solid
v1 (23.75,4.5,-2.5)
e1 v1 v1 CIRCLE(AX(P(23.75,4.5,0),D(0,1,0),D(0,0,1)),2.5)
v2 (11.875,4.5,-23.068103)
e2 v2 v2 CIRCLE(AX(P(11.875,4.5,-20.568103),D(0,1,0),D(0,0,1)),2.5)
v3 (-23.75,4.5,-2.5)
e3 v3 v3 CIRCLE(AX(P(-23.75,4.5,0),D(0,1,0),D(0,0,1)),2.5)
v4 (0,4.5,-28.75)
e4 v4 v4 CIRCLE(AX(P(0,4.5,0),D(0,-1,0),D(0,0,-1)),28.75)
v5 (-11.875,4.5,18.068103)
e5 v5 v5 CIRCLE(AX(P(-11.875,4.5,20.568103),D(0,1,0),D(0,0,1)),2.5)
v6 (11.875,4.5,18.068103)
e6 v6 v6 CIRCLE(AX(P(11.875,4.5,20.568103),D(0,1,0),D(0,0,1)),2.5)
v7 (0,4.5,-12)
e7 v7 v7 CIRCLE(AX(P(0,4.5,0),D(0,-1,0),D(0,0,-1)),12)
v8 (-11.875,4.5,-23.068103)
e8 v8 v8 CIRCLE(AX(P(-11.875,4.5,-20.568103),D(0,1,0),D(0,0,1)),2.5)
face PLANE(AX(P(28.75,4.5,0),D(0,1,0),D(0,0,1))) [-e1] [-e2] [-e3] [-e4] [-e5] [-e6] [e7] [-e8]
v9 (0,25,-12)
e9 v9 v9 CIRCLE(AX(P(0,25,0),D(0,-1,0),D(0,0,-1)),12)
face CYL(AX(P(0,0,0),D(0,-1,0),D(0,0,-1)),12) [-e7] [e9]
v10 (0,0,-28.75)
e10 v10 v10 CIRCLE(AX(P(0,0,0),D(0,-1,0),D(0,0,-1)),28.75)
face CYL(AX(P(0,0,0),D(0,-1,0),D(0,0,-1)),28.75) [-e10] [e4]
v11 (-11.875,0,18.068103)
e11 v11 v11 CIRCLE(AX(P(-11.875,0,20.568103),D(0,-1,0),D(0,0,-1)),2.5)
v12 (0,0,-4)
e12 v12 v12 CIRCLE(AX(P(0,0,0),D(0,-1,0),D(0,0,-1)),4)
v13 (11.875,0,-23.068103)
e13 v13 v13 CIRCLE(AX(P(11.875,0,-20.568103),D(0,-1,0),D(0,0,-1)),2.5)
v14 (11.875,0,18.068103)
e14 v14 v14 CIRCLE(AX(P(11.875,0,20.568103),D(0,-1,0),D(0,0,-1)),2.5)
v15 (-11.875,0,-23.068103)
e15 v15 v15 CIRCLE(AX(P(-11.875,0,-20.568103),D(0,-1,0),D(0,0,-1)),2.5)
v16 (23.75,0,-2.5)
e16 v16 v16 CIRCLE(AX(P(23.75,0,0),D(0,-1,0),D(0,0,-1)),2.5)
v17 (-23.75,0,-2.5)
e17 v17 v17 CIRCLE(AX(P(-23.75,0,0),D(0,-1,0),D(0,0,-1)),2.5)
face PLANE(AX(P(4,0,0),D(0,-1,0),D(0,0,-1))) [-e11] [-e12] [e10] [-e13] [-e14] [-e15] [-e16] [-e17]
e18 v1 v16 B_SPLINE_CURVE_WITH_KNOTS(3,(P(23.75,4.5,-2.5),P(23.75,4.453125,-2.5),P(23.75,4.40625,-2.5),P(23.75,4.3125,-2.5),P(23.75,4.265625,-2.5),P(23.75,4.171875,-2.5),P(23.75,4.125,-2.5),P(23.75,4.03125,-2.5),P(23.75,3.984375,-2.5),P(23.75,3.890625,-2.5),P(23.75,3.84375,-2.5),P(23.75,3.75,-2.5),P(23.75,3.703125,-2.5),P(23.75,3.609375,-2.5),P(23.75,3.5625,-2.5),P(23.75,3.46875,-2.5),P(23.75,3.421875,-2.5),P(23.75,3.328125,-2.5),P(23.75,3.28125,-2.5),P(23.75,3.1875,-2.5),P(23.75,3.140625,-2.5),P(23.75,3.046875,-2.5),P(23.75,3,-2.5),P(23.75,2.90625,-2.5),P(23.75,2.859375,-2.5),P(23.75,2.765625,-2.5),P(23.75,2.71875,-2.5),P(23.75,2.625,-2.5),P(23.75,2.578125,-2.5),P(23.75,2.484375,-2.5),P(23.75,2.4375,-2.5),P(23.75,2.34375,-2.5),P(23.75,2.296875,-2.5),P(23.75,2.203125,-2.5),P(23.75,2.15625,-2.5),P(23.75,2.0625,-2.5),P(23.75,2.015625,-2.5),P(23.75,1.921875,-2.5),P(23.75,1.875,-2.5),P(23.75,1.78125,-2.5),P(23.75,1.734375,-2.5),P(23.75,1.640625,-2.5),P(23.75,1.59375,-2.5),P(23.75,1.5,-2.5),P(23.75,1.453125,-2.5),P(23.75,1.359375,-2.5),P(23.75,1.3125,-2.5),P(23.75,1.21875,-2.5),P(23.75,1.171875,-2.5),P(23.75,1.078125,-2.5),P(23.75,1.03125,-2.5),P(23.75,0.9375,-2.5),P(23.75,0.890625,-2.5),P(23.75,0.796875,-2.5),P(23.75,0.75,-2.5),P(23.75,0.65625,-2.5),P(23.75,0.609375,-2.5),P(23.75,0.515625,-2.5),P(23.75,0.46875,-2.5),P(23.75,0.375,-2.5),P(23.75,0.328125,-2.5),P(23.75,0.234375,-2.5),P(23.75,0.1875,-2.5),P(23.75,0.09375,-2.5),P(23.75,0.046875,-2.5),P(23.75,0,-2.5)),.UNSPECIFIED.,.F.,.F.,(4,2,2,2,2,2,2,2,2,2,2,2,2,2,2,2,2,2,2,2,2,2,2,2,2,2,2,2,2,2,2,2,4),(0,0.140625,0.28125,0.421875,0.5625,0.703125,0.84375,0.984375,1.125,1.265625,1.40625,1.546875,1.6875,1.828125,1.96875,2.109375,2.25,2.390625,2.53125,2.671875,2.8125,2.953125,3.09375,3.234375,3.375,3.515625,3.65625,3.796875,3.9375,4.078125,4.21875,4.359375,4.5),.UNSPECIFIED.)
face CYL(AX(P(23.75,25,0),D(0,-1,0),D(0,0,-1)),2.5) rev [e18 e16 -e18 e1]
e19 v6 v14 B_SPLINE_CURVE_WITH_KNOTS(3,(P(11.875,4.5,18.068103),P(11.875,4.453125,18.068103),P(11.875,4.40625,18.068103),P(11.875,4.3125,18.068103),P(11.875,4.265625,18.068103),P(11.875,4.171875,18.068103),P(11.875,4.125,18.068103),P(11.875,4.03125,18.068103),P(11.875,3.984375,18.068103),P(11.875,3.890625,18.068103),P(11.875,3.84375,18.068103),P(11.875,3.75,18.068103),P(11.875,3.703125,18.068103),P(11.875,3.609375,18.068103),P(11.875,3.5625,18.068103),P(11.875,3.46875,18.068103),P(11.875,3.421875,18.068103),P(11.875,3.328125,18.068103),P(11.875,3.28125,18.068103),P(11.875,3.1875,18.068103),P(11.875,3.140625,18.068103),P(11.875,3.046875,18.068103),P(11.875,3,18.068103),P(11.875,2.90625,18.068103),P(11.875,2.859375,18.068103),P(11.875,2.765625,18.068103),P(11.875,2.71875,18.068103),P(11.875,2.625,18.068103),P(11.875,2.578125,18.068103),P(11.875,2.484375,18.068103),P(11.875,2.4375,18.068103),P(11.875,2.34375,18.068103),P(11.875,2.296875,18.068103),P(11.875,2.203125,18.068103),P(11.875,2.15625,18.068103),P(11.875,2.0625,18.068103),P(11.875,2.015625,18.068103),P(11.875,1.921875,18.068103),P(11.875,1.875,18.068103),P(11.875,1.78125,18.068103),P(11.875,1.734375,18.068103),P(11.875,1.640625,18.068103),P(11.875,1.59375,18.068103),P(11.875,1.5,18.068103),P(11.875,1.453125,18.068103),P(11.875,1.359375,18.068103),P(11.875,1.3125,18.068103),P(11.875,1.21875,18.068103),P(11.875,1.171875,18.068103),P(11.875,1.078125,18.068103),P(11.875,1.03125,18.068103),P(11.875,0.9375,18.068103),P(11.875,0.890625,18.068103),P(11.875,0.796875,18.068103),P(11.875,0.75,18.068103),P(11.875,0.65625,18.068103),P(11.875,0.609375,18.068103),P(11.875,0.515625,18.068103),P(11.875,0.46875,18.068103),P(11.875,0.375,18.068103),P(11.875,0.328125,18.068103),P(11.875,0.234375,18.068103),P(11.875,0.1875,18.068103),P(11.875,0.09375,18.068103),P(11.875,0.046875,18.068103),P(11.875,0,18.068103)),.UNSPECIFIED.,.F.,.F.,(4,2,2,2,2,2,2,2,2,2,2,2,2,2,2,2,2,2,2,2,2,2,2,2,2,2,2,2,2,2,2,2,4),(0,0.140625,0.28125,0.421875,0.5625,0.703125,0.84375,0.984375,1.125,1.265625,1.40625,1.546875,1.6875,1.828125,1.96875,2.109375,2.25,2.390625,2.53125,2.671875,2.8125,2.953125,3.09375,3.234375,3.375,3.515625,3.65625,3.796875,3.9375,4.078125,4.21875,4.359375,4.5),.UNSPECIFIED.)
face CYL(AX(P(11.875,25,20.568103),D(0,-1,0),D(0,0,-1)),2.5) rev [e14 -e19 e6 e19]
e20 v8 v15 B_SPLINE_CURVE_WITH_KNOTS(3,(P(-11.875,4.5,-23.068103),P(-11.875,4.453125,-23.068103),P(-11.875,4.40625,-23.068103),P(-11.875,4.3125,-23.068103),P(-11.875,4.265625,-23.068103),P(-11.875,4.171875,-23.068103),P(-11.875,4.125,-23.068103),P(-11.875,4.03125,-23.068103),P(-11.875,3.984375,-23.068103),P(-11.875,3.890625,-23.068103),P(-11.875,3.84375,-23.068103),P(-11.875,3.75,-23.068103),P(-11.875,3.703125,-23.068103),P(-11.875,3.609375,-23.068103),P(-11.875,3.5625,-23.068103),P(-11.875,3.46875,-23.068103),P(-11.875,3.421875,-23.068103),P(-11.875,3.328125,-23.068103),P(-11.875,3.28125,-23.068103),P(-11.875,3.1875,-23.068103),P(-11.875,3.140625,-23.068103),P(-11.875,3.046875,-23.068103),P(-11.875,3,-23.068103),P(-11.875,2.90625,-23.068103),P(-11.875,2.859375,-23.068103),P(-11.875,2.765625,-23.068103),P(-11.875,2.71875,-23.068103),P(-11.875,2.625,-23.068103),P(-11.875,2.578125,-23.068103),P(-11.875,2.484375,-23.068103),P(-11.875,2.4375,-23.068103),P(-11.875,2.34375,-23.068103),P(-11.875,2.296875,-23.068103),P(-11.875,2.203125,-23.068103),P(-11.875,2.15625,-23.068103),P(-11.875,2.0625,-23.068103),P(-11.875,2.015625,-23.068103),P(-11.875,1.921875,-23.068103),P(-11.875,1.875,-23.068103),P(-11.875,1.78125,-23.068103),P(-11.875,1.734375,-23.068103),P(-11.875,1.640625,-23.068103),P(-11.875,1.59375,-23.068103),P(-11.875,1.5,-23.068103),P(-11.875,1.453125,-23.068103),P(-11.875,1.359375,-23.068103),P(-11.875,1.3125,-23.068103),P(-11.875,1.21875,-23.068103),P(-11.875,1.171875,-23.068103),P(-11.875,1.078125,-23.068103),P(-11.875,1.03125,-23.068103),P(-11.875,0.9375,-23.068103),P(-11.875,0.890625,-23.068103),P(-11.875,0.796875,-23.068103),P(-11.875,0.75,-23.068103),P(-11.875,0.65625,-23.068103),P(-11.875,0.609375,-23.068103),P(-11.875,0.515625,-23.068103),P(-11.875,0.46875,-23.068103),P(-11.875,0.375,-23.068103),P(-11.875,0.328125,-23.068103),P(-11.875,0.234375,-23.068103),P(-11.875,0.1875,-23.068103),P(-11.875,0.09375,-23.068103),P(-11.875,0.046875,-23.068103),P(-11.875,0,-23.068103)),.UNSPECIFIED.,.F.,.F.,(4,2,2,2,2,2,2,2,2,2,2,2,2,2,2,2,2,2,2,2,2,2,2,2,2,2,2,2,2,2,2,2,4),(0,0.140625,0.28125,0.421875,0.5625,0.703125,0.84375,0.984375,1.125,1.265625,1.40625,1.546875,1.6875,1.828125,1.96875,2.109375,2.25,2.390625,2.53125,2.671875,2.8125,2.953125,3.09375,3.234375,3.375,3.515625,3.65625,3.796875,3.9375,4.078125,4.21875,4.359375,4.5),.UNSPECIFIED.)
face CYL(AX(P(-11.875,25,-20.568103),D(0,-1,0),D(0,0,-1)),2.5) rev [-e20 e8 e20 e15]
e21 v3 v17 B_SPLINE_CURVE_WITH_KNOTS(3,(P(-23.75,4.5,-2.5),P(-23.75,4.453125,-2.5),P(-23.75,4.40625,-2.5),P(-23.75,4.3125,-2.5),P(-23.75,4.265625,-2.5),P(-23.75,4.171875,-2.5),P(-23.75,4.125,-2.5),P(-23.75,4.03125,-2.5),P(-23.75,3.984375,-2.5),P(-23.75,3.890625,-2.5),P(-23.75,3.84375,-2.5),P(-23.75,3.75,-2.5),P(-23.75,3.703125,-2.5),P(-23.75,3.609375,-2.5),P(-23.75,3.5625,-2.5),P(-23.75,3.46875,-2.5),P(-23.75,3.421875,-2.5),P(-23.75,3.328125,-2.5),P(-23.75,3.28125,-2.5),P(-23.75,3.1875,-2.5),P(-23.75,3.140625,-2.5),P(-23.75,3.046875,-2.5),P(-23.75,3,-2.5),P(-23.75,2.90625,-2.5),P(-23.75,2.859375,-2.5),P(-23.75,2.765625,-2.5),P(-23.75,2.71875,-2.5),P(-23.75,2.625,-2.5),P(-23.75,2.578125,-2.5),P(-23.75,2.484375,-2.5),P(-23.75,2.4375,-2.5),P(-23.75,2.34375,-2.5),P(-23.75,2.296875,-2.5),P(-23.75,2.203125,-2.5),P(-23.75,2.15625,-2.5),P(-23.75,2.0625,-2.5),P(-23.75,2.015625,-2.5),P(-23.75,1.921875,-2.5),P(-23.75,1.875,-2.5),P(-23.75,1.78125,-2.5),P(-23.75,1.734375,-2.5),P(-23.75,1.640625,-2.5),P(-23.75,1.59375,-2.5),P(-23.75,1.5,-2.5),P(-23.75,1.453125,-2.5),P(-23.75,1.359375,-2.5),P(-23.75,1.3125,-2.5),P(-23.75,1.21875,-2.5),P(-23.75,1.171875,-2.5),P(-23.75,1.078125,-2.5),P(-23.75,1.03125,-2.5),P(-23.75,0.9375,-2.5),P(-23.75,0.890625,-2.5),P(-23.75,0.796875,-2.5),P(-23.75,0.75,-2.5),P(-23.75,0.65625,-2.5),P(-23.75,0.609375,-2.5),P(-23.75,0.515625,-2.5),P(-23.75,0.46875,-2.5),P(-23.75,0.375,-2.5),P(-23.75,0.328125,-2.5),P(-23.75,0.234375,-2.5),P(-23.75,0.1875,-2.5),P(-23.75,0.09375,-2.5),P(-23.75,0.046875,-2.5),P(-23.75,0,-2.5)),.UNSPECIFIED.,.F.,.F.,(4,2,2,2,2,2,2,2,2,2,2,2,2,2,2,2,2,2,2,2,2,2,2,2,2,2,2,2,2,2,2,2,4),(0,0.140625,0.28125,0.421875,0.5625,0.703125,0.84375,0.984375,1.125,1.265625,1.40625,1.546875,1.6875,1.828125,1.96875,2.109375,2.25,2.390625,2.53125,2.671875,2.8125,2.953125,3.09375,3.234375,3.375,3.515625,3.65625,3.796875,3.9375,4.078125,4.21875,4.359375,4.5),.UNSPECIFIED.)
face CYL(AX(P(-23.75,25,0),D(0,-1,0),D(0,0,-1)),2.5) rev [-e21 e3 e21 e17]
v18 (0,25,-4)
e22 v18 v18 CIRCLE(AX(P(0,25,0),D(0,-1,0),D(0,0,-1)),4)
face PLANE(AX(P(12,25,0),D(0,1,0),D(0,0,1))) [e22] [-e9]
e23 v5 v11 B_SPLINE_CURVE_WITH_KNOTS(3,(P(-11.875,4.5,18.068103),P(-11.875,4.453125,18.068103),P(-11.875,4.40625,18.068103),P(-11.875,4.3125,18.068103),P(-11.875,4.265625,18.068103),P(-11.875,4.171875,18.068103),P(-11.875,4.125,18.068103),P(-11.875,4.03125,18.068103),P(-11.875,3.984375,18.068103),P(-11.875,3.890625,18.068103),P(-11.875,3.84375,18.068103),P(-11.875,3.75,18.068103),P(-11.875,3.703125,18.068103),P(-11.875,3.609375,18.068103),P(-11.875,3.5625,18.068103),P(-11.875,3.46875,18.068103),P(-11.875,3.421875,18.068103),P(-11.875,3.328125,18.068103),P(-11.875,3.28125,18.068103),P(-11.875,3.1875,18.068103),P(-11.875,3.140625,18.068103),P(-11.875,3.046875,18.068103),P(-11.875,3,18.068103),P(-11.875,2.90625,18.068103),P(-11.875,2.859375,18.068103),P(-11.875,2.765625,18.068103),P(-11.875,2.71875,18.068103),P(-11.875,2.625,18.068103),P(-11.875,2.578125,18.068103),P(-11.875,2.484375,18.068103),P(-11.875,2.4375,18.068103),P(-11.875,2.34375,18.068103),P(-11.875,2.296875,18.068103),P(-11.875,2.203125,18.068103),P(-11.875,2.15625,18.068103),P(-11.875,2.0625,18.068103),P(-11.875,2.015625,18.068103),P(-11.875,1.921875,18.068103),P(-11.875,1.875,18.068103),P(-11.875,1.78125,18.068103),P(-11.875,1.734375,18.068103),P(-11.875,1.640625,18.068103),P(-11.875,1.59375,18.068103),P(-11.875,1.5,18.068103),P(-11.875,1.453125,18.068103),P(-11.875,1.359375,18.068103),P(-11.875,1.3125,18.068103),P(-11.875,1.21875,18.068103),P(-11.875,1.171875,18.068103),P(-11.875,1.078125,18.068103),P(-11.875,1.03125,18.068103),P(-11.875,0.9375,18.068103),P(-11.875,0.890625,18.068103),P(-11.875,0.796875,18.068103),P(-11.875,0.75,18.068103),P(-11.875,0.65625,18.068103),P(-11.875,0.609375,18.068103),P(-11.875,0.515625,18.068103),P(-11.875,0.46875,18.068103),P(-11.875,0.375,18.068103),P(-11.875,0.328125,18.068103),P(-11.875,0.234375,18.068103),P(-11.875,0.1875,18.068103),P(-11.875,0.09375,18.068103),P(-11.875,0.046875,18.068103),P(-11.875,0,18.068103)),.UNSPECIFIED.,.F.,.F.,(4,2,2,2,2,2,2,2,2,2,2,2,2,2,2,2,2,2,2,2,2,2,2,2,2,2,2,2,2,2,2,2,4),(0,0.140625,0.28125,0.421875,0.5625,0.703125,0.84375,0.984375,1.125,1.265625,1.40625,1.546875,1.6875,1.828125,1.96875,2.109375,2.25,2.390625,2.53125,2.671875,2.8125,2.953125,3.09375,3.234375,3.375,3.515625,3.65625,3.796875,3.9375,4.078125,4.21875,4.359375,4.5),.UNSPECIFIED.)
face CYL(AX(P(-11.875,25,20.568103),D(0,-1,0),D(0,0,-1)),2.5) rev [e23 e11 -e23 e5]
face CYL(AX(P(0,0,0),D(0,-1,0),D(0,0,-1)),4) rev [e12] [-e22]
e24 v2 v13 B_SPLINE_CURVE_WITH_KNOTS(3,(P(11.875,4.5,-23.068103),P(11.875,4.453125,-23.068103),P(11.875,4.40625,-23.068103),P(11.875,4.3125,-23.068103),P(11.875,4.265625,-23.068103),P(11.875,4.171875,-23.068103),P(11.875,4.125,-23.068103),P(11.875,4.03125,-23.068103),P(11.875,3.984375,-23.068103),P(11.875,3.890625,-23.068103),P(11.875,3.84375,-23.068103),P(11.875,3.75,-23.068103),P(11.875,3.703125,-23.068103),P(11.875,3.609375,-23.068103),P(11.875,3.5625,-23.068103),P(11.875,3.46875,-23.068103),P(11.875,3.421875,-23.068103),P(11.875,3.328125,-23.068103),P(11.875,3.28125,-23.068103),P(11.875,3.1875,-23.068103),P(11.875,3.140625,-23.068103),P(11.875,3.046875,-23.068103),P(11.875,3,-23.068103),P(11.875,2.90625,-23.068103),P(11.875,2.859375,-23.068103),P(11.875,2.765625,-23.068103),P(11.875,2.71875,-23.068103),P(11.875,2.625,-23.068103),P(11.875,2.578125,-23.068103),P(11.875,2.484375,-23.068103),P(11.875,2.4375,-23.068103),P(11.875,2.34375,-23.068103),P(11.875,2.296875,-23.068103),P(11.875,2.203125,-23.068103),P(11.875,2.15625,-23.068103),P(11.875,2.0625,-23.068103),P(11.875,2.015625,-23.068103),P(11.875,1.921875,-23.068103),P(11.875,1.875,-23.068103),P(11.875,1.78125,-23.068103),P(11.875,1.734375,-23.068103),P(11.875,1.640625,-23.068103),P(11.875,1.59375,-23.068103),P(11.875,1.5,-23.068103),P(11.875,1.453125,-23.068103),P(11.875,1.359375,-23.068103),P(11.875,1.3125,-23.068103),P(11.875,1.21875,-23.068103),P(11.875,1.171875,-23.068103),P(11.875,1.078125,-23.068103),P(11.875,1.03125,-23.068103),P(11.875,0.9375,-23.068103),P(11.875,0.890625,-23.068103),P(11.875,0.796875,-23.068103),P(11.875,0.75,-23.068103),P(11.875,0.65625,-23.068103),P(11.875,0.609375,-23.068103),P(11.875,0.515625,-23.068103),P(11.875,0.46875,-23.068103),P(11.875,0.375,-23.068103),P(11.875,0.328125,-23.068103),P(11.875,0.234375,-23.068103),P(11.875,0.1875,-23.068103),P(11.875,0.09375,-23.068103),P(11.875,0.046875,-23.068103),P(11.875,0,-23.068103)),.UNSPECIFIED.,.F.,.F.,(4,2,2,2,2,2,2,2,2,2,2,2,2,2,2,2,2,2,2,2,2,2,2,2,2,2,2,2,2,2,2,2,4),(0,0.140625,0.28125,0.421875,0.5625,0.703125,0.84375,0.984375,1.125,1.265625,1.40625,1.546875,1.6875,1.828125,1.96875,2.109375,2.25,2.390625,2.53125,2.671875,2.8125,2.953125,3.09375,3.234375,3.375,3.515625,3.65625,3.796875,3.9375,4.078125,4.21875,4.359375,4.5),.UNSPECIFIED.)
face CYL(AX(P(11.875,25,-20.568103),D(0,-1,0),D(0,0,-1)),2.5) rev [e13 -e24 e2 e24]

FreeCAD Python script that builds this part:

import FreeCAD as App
import Part
import Sketcher
Q = App.Units.Quantity


def add_polygon(sketch, points):
    """Adds a closed chain of lines whose ends are joined by coincident constraints."""
    first, n = sketch.GeometryCount, len(points)
    for a, b in zip(points, points[1:] + points[:1]):
        sketch.addGeometry(Part.LineSegment(App.Vector(*a, 0), App.Vector(*b, 0)), False)
    for i in range(n):
        sketch.addConstraint(Sketcher.Constraint("Coincident", first + i, 2, first + (i + 1) % n, 1))

doc = App.newDocument("Part")
body = doc.addObject("PartDesign::Body", "Body")

sketch1 = body.newObject("Sketcher::SketchObject", "Sketch")
sketch1.AttachmentSupport = (doc.getObject("XY_Plane"), [""])
sketch1.MapMode = "FlatFace"
add_polygon(sketch1, [(4, 0), (28.8, 0), (28.8, 4.5), (12, 4.5), (12, 25), (4, 25)])
sketch1.addConstraint([
    Sketcher.Constraint("Horizontal", 0),
    Sketcher.Constraint("Vertical", 1),
    Sketcher.Constraint("Horizontal", 2),
    Sketcher.Constraint("Vertical", 3),
    Sketcher.Constraint("Horizontal", 4),
    Sketcher.Constraint("Vertical", 5),
    Sketcher.Constraint("PointOnObject", 0, 2, -1),
    Sketcher.Constraint("DistanceX", 4, 2, 4, 1, Q("8 mm")),
    Sketcher.Constraint("DistanceY", 5, 2, 5, 1, Q("25 mm")),
    Sketcher.Constraint("DistanceY", 1, 1, 1, 2, Q("4.5 mm")),
    Sketcher.Constraint("DistanceX", -1, 1, 2, 2, Q("12 mm")),
    Sketcher.Constraint("DistanceX", 0, 1, 0, 2, Q("24.75 mm")),
])
revolution = body.newObject("PartDesign::Revolution", "Revolution")
revolution.Profile = sketch1
revolution.ReferenceAxis = (sketch1, ["V_Axis"])
revolution.Angle = 360

sketch2 = body.newObject("Sketcher::SketchObject", "Sketch001")
sketch2.AttachmentSupport = (doc.getObject("XZ_Plane"), [""])
sketch2.MapMode = "FlatFace"
sketch2.addGeometry([
    Part.Circle(App.Vector(23.8, 0, 0), App.Vector(0, 0, 1), 2.5),
    Part.Circle(App.Vector(11.9, -20.6, 0), App.Vector(0, 0, 1), 2.5),
    Part.Circle(App.Vector(-11.9, -20.6, 0), App.Vector(0, 0, 1), 2.5),
    Part.Circle(App.Vector(-23.8, 0, 0), App.Vector(0, 0, 1), 2.5),
    Part.Circle(App.Vector(-11.9, 20.6, 0), App.Vector(0, 0, 1), 2.5),
    Part.Circle(App.Vector(11.9, 20.6, 0), App.Vector(0, 0, 1), 2.5),
], False)
sketch2.addConstraint([
    Sketcher.Constraint("Equal", 0, 1),
    Sketcher.Constraint("Equal", 1, 2),
    Sketcher.Constraint("Equal", 2, 3),
    Sketcher.Constraint("Equal", 3, 4),
    Sketcher.Constraint("Equal", 4, 5),
    Sketcher.Constraint("Symmetric", 0, 3, 3, 3, -1, 1),
    Sketcher.Constraint("Symmetric", 1, 3, 4, 3, -1, 1),
    Sketcher.Constraint("Symmetric", 2, 3, 5, 3, -1, 1),
    Sketcher.Constraint("Symmetric", 1, 3, 2, 3, -2),
    Sketcher.Constraint("PointOnObject", 0, 3, -1),
    Sketcher.Constraint("Diameter", 0, Q("5 mm")),
    Sketcher.Constraint("DistanceX", 3, 3, 0, 3, Q("47.5 mm")),
    Sketcher.Constraint("DistanceX", 2, 3, 1, 3, Q("23.75 mm")),
    Sketcher.Constraint("DistanceY", 1, 3, -1, 1, Q("20.568103 mm")),
])
pocket1 = body.newObject("PartDesign::Pocket", "Pocket")
pocket1.Profile = sketch2
pocket1.Type = "ThroughAll"

doc.recompute()
